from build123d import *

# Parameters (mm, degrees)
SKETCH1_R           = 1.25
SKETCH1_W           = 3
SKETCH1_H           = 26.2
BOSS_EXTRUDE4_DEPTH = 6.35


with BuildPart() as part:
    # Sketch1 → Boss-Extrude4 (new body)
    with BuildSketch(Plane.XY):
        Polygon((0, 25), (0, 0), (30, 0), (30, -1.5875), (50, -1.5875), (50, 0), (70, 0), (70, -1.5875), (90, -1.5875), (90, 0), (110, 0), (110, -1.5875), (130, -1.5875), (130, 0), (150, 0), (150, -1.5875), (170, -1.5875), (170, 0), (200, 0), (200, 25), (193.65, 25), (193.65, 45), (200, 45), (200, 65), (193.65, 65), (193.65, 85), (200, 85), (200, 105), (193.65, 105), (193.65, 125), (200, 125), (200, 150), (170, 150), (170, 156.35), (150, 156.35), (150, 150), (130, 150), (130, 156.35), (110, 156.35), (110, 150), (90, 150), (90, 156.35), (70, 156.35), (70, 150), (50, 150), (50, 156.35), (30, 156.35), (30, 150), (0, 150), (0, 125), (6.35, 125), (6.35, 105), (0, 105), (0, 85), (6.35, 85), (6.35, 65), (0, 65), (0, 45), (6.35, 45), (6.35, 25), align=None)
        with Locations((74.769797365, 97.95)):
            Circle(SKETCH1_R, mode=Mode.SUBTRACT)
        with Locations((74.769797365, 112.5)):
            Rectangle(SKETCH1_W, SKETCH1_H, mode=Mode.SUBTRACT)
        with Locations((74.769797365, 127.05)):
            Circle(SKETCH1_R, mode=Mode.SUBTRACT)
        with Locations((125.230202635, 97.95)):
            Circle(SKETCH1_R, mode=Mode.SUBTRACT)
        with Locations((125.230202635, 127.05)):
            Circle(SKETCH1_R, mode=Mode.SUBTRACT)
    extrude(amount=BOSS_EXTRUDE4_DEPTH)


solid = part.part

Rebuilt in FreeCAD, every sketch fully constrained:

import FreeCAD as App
import Part
import Sketcher
Q = App.Units.Quantity


def add_polygon(sketch, points):
    """Adds a closed chain of lines whose ends are joined by coincident constraints."""
    first, n = sketch.GeometryCount, len(points)
    for a, b in zip(points, points[1:] + points[:1]):
        sketch.addGeometry(Part.LineSegment(App.Vector(*a, 0), App.Vector(*b, 0)), False)
    for i in range(n):
        sketch.addConstraint(Sketcher.Constraint("Coincident", first + i, 2, first + (i + 1) % n, 1))

doc = App.newDocument("Part")
body = doc.addObject("PartDesign::Body", "Body")

sketch1 = doc.addObject("Sketcher::SketchObject", "Sketch")
body.addObject(sketch1)
sketch1.AttachmentSupport = (doc.XY_Plane, [""])
sketch1.MapMode = "FlatFace"
add_polygon(sketch1, [(0, 25), (0, 0), (30, 0), (30, -1.5875), (50, -1.5875), (50, 0), (70, 0), (70, -1.5875), (90, -1.5875), (90, 0), (110, 0), (110, -1.5875), (130, -1.5875), (130, 0), (150, 0), (150, -1.5875), (170, -1.5875), (170, 0), (200, 0), (200, 25), (193.65, 25), (193.65, 45), (200, 45), (200, 65), (193.65, 65), (193.65, 85), (200, 85), (200, 105), (193.65, 105), (193.65, 125), (200, 125), (200, 150), (170, 150), (170, 156.35), (150, 156.35), (150, 150), (130, 150), (130, 156.35), (110, 156.35), (110, 150), (90, 150), (90, 156.35), (70, 156.35), (70, 150), (50, 150), (50, 156.35), (30, 156.35), (30, 150), (0, 150), (0, 125), (6.35, 125), (6.35, 105), (0, 105), (0, 85), (6.35, 85), (6.35, 65), (0, 65), (0, 45), (6.35, 45), (6.35, 25)])
sketch1.addGeometry(Part.Circle(App.Vector(74.769797, 97.95, 0), App.Vector(0, 0, 1), 1.25), False)
sketch1.addGeometry(Part.Circle(App.Vector(125.230203, 97.95, 0), App.Vector(0, 0, 1), 1.25), False)
add_polygon(sketch1, [(76.269797, 99.4), (73.269797, 99.4), (73.269797, 125.6), (76.269797, 125.6)])
sketch1.addGeometry(Part.Circle(App.Vector(74.769797, 127.05, 0), App.Vector(0, 0, 1), 1.25), False)
sketch1.addGeometry(Part.Circle(App.Vector(125.230203, 127.05, 0), App.Vector(0, 0, 1), 1.25), False)
sketch1.addConstraint([
    Sketcher.Constraint("Vertical", 0),
    Sketcher.Constraint("Horizontal", 1),
    Sketcher.Constraint("Vertical", 2),
    Sketcher.Constraint("Horizontal", 3),
    Sketcher.Constraint("Vertical", 4),
    Sketcher.Constraint("Horizontal", 5),
    Sketcher.Constraint("Vertical", 6),
    Sketcher.Constraint("Horizontal", 7),
    Sketcher.Constraint("Vertical", 8),
    Sketcher.Constraint("Horizontal", 9),
    Sketcher.Constraint("Vertical", 10),
    Sketcher.Constraint("Horizontal", 11),
    Sketcher.Constraint("Vertical", 12),
    Sketcher.Constraint("Horizontal", 13),
    Sketcher.Constraint("Vertical", 14),
    Sketcher.Constraint("Horizontal", 15),
    Sketcher.Constraint("Vertical", 16),
    Sketcher.Constraint("Horizontal", 17),
    Sketcher.Constraint("Vertical", 18),
    Sketcher.Constraint("Horizontal", 19),
    Sketcher.Constraint("Vertical", 20),
    Sketcher.Constraint("Horizontal", 21),
    Sketcher.Constraint("Vertical", 22),
    Sketcher.Constraint("Horizontal", 23),
    Sketcher.Constraint("Vertical", 24),
    Sketcher.Constraint("Horizontal", 25),
    Sketcher.Constraint("Vertical", 26),
    Sketcher.Constraint("Horizontal", 27),
    Sketcher.Constraint("Vertical", 28),
    Sketcher.Constraint("Horizontal", 29),
    Sketcher.Constraint("Vertical", 30),
    Sketcher.Constraint("Horizontal", 31),
    Sketcher.Constraint("Vertical", 32),
    Sketcher.Constraint("Horizontal", 33),
    Sketcher.Constraint("Vertical", 34),
    Sketcher.Constraint("Horizontal", 35),
    Sketcher.Constraint("Vertical", 36),
    Sketcher.Constraint("Horizontal", 37),
    Sketcher.Constraint("Vertical", 38),
    Sketcher.Constraint("Horizontal", 39),
    Sketcher.Constraint("Vertical", 40),
    Sketcher.Constraint("Horizontal", 41),
    Sketcher.Constraint("Vertical", 42),
    Sketcher.Constraint("Horizontal", 43),
    Sketcher.Constraint("Vertical", 44),
    Sketcher.Constraint("Horizontal", 45),
    Sketcher.Constraint("Vertical", 46),
    Sketcher.Constraint("Horizontal", 47),
    Sketcher.Constraint("Vertical", 48),
    Sketcher.Constraint("Horizontal", 49),
    Sketcher.Constraint("Vertical", 50),
    Sketcher.Constraint("Horizontal", 51),
    Sketcher.Constraint("Vertical", 52),
    Sketcher.Constraint("Horizontal", 53),
    Sketcher.Constraint("Vertical", 54),
    Sketcher.Constraint("Horizontal", 55),
    Sketcher.Constraint("Vertical", 56),
    Sketcher.Constraint("Horizontal", 57),
    Sketcher.Constraint("Vertical", 58),
    Sketcher.Constraint("Horizontal", 59),
    Sketcher.Constraint("Horizontal", 62),
    Sketcher.Constraint("Vertical", 63),
    Sketcher.Constraint("Horizontal", 64),
    Sketcher.Constraint("Vertical", 65),
    Sketcher.Constraint("Coincident", 0, 2, -1, 1),
    Sketcher.Constraint("Equal", 60, 61),
    Sketcher.Constraint("Equal", 61, 66),
    Sketcher.Constraint("Equal", 66, 67),
    Sketcher.Constraint("PointOnObject", 4, 2, -1),
    Sketcher.Constraint("PointOnObject", 8, 2, -1),
    Sketcher.Constraint("PointOnObject", 12, 2, -1),
    Sketcher.Constraint("PointOnObject", 16, 2, -1),
    Sketcher.Constraint("PointOnObject", 47, 2, -2),
    Sketcher.Constraint("PointOnObject", 51, 2, -2),
    Sketcher.Constraint("PointOnObject", 55, 2, -2),
    Sketcher.Constraint("Horizontal", 60, 3, 61, 3),
    Sketcher.Constraint("Horizontal", 66, 3, 67, 3),
    Sketcher.Constraint("Horizontal", 3, 2, 6, 2),
    Sketcher.Constraint("Horizontal", 7, 2, 10, 2),
    Sketcher.Constraint("Horizontal", 11, 2, 14, 2),
    Sketcher.Constraint("Horizontal", 31, 2, 34, 2),
    Sketcher.Constraint("Horizontal", 33, 2, 36, 2),
    Sketcher.Constraint("Horizontal", 35, 2, 38, 2),
    Sketcher.Constraint("Horizontal", 37, 2, 40, 2),
    Sketcher.Constraint("Horizontal", 39, 2, 42, 2),
    Sketcher.Constraint("Horizontal", 41, 2, 44, 2),
    Sketcher.Constraint("Horizontal", 43, 2, 46, 2),
    Sketcher.Constraint("Horizontal", 29, 2, 48, 2),
    Sketcher.Constraint("Horizontal", 27, 2, 50, 2),
    Sketcher.Constraint("Horizontal", 25, 2, 52, 2),
    Sketcher.Constraint("Horizontal", 23, 2, 54, 2),
    Sketcher.Constraint("Horizontal", 21, 2, 56, 2),
    Sketcher.Constraint("Horizontal", 19, 2, 58, 2),
    Sketcher.Constraint("Vertical", 60, 3, 66, 3),
    Sketcher.Constraint("Vertical", 61, 3, 67, 3),
    Sketcher.Constraint("Vertical", 18, 2, 21, 2),
    Sketcher.Constraint("Vertical", 20, 2, 23, 2),
    Sketcher.Constraint("Vertical", 22, 2, 25, 2),
    Sketcher.Constraint("Vertical", 24, 2, 27, 2),
    Sketcher.Constraint("Vertical", 26, 2, 29, 2),
    Sketcher.Constraint("Vertical", 16, 2, 31, 2),
    Sketcher.Constraint("Vertical", 14, 2, 33, 2),
    Sketcher.Constraint("Vertical", 12, 2, 35, 2),
    Sketcher.Constraint("Vertical", 10, 2, 37, 2),
    Sketcher.Constraint("Vertical", 8, 2, 39, 2),
    Sketcher.Constraint("Vertical", 6, 2, 41, 2),
    Sketcher.Constraint("Vertical", 4, 2, 43, 2),
    Sketcher.Constraint("Vertical", 2, 2, 45, 2),
    Sketcher.Constraint("Vertical", 50, 2, 53, 2),
    Sketcher.Constraint("Vertical", 54, 2, 57, 2),
    Sketcher.Constraint("Equal", 3, 5),
    Sketcher.Constraint("Equal", 5, 7),
    Sketcher.Constraint("Equal", 7, 9),
    Sketcher.Constraint("Equal", 9, 11),
    Sketcher.Constraint("Equal", 11, 13),
    Sketcher.Constraint("Equal", 13, 15),
    Sketcher.Constraint("Equal", 1, 17),
    Sketcher.Constraint("Equal", 29, 49),
    Sketcher.Constraint("Equal", 45, 20),
    Sketcher.Constraint("Equal", 20, 22),
    Sketcher.Constraint("Equal", 22, 24),
    Sketcher.Constraint("Equal", 24, 26),
    Sketcher.Constraint("Equal", 26, 28),
    Sketcher.Constraint("Equal", 18, 30),
    Sketcher.Constraint("Equal", 59, 32),
    Sketcher.Constraint("Diameter", 60, Q("2.5 mm")),
    Sketcher.Constraint("DistanceX", 1, 1, 1, 2, Q("30 mm")),
    Sketcher.Constraint("DistanceX", 3, 1, 3, 2, Q("20 mm")),
    Sketcher.Constraint("DistanceX", 62, 2, 62, 1, Q("3 mm")),
    Sketcher.Constraint("DistanceY", 0, 2, 0, 1, Q("25 mm")),
    Sketcher.Constraint("DistanceY", 63, 1, 63, 2, Q("26.2 mm")),
    Sketcher.Constraint("DistanceX", 19, 2, 19, 1, Q("6.35 mm")),
    Sketcher.Constraint("DistanceY", -1, 1, 62, 2, Q("99.4 mm")),
    Sketcher.Constraint("DistanceY", -1, 1, 60, 3, Q("97.95 mm")),
    Sketcher.Constraint("DistanceY", -1, 1, 66, 3, Q("127.05 mm")),
    Sketcher.Constraint("DistanceY", 2, 2, 2, 1, Q("1.5875 mm")),
    Sketcher.Constraint("DistanceX", -1, 1, 60, 3, Q("74.769797 mm")),
    Sketcher.Constraint("DistanceX", -1, 1, 61, 3, Q("125.230203 mm")),
    Sketcher.Constraint("DistanceX", -1, 1, 62, 2, Q("73.269797 mm")),
])
pad1 = doc.addObject("PartDesign::Pad", "Pad")
body.addObject(pad1)
pad1.Profile = sketch1
pad1.Length = 6.35

doc.recompute()
